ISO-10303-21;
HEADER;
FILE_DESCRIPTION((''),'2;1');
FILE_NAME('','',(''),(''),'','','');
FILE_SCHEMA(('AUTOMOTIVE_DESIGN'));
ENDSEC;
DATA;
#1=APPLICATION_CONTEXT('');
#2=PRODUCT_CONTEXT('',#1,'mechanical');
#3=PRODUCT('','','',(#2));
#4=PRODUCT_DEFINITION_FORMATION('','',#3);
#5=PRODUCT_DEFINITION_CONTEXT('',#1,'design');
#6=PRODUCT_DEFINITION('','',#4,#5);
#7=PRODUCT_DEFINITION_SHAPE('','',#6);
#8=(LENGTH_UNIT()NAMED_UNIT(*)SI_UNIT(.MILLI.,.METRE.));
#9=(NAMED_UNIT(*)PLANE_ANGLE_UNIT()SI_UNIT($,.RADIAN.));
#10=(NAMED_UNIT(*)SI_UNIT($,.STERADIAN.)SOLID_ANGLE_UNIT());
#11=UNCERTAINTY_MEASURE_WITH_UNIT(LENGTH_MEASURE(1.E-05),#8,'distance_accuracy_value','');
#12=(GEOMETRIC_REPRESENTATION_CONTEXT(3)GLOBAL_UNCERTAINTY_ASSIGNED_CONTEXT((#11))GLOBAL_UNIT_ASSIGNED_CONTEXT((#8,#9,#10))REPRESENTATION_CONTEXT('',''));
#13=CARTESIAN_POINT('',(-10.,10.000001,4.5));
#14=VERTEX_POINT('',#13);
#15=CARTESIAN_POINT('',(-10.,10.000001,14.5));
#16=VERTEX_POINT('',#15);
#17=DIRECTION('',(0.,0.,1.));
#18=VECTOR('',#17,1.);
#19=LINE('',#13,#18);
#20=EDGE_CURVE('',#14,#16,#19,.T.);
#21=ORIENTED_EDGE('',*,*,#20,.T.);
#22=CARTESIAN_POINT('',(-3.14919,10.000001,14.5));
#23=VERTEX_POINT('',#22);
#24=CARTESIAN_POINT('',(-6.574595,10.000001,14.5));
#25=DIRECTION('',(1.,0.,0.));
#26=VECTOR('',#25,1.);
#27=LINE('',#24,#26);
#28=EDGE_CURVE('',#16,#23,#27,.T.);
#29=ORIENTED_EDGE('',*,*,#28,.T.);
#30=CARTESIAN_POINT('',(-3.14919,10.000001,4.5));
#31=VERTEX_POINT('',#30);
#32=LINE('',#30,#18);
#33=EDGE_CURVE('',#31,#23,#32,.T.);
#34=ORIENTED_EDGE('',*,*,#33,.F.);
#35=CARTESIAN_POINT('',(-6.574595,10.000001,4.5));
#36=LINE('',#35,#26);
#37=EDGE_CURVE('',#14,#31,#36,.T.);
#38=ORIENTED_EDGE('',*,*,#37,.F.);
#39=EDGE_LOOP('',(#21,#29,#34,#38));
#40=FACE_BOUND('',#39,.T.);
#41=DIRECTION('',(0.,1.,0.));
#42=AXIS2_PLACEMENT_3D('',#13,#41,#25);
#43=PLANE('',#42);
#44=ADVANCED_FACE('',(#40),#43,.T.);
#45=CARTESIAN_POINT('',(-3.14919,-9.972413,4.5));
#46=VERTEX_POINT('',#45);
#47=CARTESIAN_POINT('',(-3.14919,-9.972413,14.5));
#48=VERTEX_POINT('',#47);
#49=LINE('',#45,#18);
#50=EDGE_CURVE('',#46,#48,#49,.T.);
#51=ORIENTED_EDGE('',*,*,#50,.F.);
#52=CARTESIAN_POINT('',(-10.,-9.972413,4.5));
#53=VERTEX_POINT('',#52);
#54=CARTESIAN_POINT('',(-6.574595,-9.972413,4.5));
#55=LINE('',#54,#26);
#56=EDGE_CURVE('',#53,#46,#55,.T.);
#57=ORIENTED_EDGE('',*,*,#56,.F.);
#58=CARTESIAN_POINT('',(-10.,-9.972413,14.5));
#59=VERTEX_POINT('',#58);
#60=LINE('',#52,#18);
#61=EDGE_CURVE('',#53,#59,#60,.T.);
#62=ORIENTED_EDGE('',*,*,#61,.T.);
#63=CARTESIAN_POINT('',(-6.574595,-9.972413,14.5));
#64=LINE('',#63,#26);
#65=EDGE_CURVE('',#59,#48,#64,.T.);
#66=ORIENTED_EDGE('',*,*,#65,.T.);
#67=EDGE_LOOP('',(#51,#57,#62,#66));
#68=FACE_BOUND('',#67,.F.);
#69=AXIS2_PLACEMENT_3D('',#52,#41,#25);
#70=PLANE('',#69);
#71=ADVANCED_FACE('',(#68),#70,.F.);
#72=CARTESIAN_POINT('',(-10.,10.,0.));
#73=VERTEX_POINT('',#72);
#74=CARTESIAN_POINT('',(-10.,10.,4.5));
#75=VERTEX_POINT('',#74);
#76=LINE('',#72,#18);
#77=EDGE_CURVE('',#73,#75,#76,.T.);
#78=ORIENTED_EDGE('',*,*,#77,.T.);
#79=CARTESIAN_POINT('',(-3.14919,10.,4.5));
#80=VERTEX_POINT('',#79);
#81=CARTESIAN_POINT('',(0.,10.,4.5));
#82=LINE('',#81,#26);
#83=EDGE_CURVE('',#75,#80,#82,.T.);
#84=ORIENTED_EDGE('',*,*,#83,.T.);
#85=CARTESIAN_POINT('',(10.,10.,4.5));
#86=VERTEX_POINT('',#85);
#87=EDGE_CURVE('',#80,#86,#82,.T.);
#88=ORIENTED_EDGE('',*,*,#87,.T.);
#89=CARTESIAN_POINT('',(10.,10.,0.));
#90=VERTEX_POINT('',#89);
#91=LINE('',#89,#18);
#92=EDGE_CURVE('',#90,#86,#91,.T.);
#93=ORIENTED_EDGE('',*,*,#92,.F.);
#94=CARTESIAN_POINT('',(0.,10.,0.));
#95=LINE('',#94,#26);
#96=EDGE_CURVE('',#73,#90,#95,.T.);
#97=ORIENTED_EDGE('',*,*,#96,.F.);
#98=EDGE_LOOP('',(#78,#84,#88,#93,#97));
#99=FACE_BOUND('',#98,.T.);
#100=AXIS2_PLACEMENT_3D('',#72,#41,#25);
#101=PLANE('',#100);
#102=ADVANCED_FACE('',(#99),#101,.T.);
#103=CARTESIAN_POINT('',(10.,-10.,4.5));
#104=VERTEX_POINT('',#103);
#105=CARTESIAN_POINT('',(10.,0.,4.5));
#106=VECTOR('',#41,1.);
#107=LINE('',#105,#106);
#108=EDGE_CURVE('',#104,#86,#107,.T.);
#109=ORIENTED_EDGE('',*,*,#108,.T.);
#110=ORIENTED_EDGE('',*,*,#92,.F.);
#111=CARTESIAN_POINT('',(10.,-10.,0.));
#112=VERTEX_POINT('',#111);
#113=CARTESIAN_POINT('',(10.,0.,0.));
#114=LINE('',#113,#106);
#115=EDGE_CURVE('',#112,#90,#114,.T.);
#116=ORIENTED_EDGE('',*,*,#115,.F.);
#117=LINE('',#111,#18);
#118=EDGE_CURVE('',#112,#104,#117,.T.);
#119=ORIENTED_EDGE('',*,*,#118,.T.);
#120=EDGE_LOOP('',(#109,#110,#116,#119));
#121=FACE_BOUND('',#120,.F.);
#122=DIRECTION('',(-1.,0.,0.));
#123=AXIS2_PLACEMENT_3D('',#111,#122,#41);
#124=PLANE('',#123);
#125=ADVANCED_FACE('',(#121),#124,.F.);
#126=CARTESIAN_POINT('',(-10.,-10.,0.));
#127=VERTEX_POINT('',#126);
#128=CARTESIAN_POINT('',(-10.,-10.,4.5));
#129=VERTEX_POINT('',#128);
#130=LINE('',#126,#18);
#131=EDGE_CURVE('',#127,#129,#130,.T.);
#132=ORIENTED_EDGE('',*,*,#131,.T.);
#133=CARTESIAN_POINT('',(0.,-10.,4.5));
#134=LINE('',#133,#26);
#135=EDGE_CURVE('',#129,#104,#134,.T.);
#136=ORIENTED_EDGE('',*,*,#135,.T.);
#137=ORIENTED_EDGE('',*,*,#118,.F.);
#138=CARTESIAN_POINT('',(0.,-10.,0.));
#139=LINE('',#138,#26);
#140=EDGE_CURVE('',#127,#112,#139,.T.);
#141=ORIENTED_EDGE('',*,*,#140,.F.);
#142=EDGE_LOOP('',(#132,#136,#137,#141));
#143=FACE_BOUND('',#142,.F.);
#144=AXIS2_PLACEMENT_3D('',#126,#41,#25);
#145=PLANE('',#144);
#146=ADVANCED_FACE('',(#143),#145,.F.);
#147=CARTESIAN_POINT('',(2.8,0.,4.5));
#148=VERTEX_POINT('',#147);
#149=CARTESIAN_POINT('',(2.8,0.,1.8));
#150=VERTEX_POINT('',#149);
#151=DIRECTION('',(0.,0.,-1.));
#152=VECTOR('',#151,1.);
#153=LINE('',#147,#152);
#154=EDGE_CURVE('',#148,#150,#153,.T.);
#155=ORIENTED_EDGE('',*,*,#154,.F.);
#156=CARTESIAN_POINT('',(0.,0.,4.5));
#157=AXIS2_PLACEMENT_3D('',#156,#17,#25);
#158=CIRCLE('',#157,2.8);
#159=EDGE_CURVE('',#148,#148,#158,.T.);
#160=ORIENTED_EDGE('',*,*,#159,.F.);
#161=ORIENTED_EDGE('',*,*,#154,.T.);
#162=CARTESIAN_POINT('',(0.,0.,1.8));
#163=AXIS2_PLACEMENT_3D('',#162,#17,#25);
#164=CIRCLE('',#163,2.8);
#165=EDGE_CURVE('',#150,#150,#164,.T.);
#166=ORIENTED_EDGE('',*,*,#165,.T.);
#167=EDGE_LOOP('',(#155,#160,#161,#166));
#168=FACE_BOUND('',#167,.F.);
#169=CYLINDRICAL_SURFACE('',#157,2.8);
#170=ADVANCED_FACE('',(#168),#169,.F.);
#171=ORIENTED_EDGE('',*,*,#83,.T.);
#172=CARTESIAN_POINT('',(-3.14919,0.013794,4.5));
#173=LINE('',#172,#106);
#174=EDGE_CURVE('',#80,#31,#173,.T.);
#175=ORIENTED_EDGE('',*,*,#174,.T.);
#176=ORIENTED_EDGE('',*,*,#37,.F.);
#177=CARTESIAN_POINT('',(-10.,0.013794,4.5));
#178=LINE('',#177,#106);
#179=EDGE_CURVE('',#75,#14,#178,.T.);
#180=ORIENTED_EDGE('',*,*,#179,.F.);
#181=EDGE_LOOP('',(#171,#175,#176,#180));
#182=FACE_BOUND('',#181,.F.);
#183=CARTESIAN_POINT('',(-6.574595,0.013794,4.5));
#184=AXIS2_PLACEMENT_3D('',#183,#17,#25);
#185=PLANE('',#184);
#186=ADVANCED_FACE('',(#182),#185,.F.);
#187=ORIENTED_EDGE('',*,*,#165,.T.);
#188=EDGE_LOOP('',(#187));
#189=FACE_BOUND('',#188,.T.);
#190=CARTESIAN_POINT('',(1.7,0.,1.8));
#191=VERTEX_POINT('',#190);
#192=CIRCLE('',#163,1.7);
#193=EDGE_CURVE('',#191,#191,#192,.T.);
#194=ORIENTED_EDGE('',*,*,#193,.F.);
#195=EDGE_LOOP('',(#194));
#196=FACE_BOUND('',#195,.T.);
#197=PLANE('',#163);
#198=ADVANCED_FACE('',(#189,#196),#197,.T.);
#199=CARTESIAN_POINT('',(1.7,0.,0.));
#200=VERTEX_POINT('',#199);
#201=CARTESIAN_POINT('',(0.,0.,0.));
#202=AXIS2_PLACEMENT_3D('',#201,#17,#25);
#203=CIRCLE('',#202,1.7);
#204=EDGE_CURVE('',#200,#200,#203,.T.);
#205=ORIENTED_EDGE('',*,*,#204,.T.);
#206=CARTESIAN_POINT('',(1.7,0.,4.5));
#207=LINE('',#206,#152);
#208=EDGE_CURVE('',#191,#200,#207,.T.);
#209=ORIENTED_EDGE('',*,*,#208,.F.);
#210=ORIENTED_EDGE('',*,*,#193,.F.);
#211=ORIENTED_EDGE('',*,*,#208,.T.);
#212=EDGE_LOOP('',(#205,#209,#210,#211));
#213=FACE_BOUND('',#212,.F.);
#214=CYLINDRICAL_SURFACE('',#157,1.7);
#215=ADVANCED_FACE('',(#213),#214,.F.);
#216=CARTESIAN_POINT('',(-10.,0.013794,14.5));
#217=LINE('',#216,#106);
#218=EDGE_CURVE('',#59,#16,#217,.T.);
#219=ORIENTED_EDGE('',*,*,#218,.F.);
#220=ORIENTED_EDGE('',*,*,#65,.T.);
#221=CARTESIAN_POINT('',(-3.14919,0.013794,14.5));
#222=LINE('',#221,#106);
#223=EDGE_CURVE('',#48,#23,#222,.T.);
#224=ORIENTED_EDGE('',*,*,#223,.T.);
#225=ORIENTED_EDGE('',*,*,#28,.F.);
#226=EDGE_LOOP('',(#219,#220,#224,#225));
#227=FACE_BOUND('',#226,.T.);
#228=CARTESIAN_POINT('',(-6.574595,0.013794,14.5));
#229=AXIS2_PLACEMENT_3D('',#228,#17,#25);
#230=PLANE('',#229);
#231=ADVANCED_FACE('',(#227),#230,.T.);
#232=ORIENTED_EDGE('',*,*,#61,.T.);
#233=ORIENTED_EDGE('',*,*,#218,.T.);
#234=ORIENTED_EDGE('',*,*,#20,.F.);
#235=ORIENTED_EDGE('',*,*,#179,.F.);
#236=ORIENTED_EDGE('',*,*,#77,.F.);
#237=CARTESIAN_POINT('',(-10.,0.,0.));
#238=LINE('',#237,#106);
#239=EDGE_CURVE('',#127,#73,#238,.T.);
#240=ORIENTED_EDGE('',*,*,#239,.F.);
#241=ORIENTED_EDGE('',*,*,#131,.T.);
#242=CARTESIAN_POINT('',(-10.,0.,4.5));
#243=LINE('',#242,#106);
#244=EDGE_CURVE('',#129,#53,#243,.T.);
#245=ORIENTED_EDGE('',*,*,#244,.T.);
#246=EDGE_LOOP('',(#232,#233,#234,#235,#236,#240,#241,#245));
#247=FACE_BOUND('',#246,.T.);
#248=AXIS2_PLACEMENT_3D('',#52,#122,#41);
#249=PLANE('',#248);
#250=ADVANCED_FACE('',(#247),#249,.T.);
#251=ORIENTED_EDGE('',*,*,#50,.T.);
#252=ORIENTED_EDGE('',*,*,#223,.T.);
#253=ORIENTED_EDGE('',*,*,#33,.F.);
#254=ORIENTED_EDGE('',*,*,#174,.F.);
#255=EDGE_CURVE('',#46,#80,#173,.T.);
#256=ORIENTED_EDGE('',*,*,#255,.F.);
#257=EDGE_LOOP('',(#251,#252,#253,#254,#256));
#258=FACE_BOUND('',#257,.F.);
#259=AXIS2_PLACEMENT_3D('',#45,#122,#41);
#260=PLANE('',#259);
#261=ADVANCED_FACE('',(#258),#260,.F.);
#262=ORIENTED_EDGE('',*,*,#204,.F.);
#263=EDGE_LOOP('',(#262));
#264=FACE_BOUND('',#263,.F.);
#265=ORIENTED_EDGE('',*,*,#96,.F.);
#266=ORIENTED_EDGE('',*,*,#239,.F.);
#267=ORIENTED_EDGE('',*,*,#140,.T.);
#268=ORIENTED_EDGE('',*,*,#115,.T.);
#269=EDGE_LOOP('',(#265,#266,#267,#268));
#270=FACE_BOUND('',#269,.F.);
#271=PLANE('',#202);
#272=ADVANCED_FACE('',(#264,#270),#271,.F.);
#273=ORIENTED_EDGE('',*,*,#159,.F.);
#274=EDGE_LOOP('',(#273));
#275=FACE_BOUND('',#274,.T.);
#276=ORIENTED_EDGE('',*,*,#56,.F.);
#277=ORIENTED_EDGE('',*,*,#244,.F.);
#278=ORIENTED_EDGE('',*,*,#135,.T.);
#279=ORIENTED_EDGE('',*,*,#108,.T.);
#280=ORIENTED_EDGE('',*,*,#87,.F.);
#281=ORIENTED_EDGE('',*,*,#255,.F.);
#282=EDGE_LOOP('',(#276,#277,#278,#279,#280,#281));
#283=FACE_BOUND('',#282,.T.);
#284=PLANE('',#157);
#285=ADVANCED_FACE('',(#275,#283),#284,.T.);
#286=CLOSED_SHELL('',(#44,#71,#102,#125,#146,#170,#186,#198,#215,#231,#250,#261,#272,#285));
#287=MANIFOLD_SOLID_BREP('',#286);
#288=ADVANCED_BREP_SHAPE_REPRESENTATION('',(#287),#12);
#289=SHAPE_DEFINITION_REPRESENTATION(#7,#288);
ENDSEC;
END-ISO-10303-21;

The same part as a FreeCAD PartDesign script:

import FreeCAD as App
import Part
import Sketcher
from FreeCAD import Vector
Q = App.Units.Quantity

doc = App.newDocument("Part")
body = doc.addObject("PartDesign::Body", "Body")

sketch1 = body.newObject("Sketcher::SketchObject", "Sketch")
sketch1.AttachmentSupport = (doc.getObject("XY_Plane"), [""])
sketch1.MapMode = "FlatFace"
sketch1.addGeometry(Part.LineSegment(Vector(-10, 10, 0), Vector(-10, -10, 0)), False)
sketch1.addGeometry(Part.LineSegment(Vector(-10, -10, 0), Vector(10, -10, 0)), False)
sketch1.addGeometry(Part.LineSegment(Vector(10, -10, 0), Vector(10, 10, 0)), False)
sketch1.addGeometry(Part.LineSegment(Vector(10, 10, 0), Vector(-10, 10, 0)), False)
sketch1.addConstraint(Sketcher.Constraint("Coincident", 0, 2, 1, 1))
sketch1.addConstraint(Sketcher.Constraint("Coincident", 1, 2, 2, 1))
sketch1.addConstraint(Sketcher.Constraint("Coincident", 2, 2, 3, 1))
sketch1.addConstraint(Sketcher.Constraint("Coincident", 3, 2, 0, 1))
sketch1.addConstraint(Sketcher.Constraint("Vertical", 0))
sketch1.addConstraint(Sketcher.Constraint("Horizontal", 1))
sketch1.addConstraint(Sketcher.Constraint("Vertical", 2))
sketch1.addConstraint(Sketcher.Constraint("Horizontal", 3))
sketch1.addConstraint(Sketcher.Constraint("Symmetric", 0, 2, 2, 2, -1, 1))
sketch1.addConstraint(Sketcher.Constraint("Equal", 3, 0))
sketch1.addConstraint(Sketcher.Constraint("DistanceX", 1, 1, 1, 2, Q("20 mm")))
pad1 = body.newObject("PartDesign::Pad", "Pad")
pad1.Profile = sketch1
pad1.Length = 4.5

sketch2 = body.newObject("Sketcher::SketchObject", "Sketch001")
sketch2.AttachmentSupport = (doc.getObject("XY_Plane"), [""])
sketch2.MapMode = "FlatFace"
sketch2.AttachmentOffset = App.Placement(Vector(0, 0, 4.5), App.Rotation())
sketch2.addGeometry(Part.Circle(Vector(0, 0, 0), Vector(0, 0, 1), 1.7), False)
sketch2.addConstraint(Sketcher.Constraint("Coincident", 0, 3, -1, 1))
sketch2.addConstraint(Sketcher.Constraint("Diameter", 0, Q("3.4 mm")))
pocket1 = body.newObject("PartDesign::Pocket", "Pocket")
pocket1.Profile = sketch2
pocket1.Length = 5

sketch3 = body.newObject("Sketcher::SketchObject", "Sketch002")
sketch3.AttachmentSupport = (doc.getObject("XY_Plane"), [""])
sketch3.MapMode = "FlatFace"
sketch3.AttachmentOffset = App.Placement(Vector(0, 0, 4.5), App.Rotation())
sketch3.addGeometry(Part.Circle(Vector(0, 0, 0), Vector(0, 0, 1), 2.8), False)
sketch3.addConstraint(Sketcher.Constraint("Coincident", 0, 3, -1, 1))
sketch3.addConstraint(Sketcher.Constraint("Diameter", 0, Q("5.6 mm")))
pocket2 = body.newObject("PartDesign::Pocket", "Pocket001")
pocket2.Profile = sketch3
pocket2.Length = 2.7

sketch4 = body.newObject("Sketcher::SketchObject", "Sketch003")
sketch4.AttachmentSupport = (doc.getObject("XY_Plane"), [""])
sketch4.MapMode = "FlatFace"
sketch4.AttachmentOffset = App.Placement(Vector(0, 0, 4.5), App.Rotation())
sketch4.addGeometry(Part.LineSegment(Vector(-10, 10, 0), Vector(-10, -10, 0)), False)
sketch4.addGeometry(Part.LineSegment(Vector(-10, -10, 0), Vector(-3, -10, 0)), False)
sketch4.addGeometry(Part.LineSegment(Vector(-3, -10, 0), Vector(-3, 10, 0)), False)
sketch4.addGeometry(Part.LineSegment(Vector(-3, 10, 0), Vector(-10, 10, 0)), False)
sketch4.addConstraint(Sketcher.Constraint("Coincident", 0, 2, 1, 1))
sketch4.addConstraint(Sketcher.Constraint("Coincident", 1, 2, 2, 1))
sketch4.addConstraint(Sketcher.Constraint("Coincident", 2, 2, 3, 1))
sketch4.addConstraint(Sketcher.Constraint("Coincident", 3, 2, 0, 1))
sketch4.addConstraint(Sketcher.Constraint("Vertical", 0))
sketch4.addConstraint(Sketcher.Constraint("Horizontal", 1))
sketch4.addConstraint(Sketcher.Constraint("Vertical", 2))
sketch4.addConstraint(Sketcher.Constraint("Horizontal", 3))
sketch4.addConstraint(Sketcher.Constraint("DistanceX", 0, 2, -1, 1, Q("10 mm")))
sketch4.addConstraint(Sketcher.Constraint("DistanceY", -1, 1, 2, 2, Q("10.000001 mm")))
sketch4.addConstraint(Sketcher.Constraint("DistanceX", 1, 1, 1, 2, Q("6.85081 mm")))
sketch4.addConstraint(Sketcher.Constraint("DistanceY", 0, 2, 0, 1, Q("19.972413 mm")))
pad2 = body.newObject("PartDesign::Pad", "Pad001")
pad2.Profile = sketch4
pad2.Length = 10

doc.recompute()
